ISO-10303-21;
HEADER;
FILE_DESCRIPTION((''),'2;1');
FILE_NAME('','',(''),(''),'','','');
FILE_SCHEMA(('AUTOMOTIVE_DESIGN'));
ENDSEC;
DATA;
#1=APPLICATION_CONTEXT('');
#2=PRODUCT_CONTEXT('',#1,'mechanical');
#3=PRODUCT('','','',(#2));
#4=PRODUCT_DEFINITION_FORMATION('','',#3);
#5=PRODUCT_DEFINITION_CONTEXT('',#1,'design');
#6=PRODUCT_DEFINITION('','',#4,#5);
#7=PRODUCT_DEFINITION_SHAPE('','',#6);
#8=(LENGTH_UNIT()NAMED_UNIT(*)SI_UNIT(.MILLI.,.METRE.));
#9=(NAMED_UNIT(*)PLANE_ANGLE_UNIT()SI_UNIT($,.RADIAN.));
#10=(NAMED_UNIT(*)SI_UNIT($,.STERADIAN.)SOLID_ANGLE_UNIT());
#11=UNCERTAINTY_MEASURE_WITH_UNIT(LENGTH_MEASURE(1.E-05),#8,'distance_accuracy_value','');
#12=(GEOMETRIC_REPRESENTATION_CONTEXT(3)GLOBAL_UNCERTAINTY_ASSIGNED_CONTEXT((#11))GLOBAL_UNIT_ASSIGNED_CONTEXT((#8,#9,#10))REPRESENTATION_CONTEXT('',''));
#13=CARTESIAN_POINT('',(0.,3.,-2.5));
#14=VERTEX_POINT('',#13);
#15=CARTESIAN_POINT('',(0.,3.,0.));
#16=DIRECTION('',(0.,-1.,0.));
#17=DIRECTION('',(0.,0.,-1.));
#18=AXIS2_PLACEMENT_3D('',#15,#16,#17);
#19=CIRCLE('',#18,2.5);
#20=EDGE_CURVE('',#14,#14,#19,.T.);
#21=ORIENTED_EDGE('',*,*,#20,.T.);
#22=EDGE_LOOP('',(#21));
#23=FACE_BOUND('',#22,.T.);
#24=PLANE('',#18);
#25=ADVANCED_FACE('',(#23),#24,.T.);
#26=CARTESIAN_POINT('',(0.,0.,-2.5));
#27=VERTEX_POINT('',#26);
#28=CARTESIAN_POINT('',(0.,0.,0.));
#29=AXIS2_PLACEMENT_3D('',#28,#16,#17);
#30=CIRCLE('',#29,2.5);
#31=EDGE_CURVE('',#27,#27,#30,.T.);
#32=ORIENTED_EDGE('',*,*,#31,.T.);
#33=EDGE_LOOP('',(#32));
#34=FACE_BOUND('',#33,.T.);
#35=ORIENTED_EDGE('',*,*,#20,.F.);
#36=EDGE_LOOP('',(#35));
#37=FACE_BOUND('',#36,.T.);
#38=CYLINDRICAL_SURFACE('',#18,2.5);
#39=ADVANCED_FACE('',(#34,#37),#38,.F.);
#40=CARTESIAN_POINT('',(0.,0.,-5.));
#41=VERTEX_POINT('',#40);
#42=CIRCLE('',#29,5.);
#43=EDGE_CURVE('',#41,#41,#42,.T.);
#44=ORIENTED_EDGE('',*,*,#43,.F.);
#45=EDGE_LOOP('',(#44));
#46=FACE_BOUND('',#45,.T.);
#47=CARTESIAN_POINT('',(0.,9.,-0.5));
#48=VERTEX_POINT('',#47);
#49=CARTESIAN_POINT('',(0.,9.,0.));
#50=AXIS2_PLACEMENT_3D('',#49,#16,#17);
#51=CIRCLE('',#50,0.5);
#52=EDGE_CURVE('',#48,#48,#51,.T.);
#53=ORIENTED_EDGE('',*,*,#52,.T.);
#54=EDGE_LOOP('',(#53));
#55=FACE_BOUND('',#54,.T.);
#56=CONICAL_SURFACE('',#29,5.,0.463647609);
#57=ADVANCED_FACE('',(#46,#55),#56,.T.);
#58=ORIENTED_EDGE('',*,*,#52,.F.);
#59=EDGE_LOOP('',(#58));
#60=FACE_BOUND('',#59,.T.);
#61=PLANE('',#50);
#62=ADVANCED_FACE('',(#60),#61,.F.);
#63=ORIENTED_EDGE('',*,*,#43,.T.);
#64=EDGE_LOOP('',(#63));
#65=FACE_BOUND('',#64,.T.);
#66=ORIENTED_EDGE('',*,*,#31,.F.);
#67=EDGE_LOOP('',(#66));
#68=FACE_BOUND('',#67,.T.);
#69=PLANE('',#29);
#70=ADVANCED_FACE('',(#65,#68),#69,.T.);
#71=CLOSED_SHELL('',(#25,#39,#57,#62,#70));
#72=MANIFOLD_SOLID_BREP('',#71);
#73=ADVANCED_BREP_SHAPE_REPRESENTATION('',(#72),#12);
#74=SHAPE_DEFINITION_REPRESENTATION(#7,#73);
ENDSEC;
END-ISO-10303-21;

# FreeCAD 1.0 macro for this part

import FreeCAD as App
import Part
import Sketcher
Q = App.Units.Quantity

doc = App.newDocument("Part")
body = doc.addObject("PartDesign::Body", "Body")

# Sketch on XY plane
sketch1 = body.newObject("Sketcher::SketchObject", "Sketch")
sketch1.AttachmentSupport = (doc.getObject("XY_Plane"), [""])
sketch1.MapMode = "FlatFace"
sketch1.addGeometry(Part.LineSegment(App.Vector(0, 0, 0), App.Vector(5, 0, 0)), False)
sketch1.addGeometry(Part.LineSegment(App.Vector(5, 0, 0), App.Vector(0, 10, 0)), False)
sketch1.addGeometry(Part.LineSegment(App.Vector(0, 10, 0), App.Vector(0, 0, 0)), False)
sketch1.addConstraint(Sketcher.Constraint("Coincident", 0, 2, 1, 1))
sketch1.addConstraint(Sketcher.Constraint("Coincident", 1, 2, 2, 1))
sketch1.addConstraint(Sketcher.Constraint("Coincident", 2, 2, 0, 1))
sketch1.addConstraint(Sketcher.Constraint("Horizontal", 0))
sketch1.addConstraint(Sketcher.Constraint("Vertical", 2))
sketch1.addConstraint(Sketcher.Constraint("Coincident", 2, 2, -1, 1))
sketch1.addConstraint(Sketcher.Constraint("DistanceX", 0, 1, 0, 2, Q("5 mm")))
sketch1.addConstraint(Sketcher.Constraint("DistanceY", 2, 2, 2, 1, Q("10 mm")))
revolution = body.newObject("PartDesign::Revolution", "Revolution")
revolution.Profile = sketch1
revolution.ReferenceAxis = (sketch1, ["V_Axis"])
revolution.Angle = 360

# Sketch on XZ plane
sketch2 = body.newObject("Sketcher::SketchObject", "Sketch001")
sketch2.AttachmentSupport = (doc.getObject("XZ_Plane"), [""])
sketch2.MapMode = "FlatFace"
sketch2.AttachmentOffset = App.Placement(App.Vector(0, 0, -9), App.Rotation())
sketch2.addGeometry(Part.Circle(App.Vector(0, 0, 0), App.Vector(0, 0, 1), 0.5), False)
sketch2.addConstraint(Sketcher.Constraint("Coincident", 0, 3, -1, 1))
sketch2.addConstraint(Sketcher.Constraint("Diameter", 0, Q("1 mm")))
pocket1 = body.newObject("PartDesign::Pocket", "Pocket")
pocket1.Profile = sketch2
pocket1.Length = 10

# Sketch on XZ plane
sketch3 = body.newObject("Sketcher::SketchObject", "Sketch002")
sketch3.AttachmentSupport = (doc.getObject("XZ_Plane"), [""])
sketch3.MapMode = "FlatFace"
sketch3.addGeometry(Part.Circle(App.Vector(0, 0, 0), App.Vector(0, 0, 1), 2.5), False)
sketch3.addConstraint(Sketcher.Constraint("Coincident", 0, 3, -1, 1))
sketch3.addConstraint(Sketcher.Constraint("Diameter", 0, Q("5 mm")))
pocket2 = body.newObject("PartDesign::Pocket", "Pocket001")
pocket2.Profile = sketch3
pocket2.Length = 3

doc.recompute()
